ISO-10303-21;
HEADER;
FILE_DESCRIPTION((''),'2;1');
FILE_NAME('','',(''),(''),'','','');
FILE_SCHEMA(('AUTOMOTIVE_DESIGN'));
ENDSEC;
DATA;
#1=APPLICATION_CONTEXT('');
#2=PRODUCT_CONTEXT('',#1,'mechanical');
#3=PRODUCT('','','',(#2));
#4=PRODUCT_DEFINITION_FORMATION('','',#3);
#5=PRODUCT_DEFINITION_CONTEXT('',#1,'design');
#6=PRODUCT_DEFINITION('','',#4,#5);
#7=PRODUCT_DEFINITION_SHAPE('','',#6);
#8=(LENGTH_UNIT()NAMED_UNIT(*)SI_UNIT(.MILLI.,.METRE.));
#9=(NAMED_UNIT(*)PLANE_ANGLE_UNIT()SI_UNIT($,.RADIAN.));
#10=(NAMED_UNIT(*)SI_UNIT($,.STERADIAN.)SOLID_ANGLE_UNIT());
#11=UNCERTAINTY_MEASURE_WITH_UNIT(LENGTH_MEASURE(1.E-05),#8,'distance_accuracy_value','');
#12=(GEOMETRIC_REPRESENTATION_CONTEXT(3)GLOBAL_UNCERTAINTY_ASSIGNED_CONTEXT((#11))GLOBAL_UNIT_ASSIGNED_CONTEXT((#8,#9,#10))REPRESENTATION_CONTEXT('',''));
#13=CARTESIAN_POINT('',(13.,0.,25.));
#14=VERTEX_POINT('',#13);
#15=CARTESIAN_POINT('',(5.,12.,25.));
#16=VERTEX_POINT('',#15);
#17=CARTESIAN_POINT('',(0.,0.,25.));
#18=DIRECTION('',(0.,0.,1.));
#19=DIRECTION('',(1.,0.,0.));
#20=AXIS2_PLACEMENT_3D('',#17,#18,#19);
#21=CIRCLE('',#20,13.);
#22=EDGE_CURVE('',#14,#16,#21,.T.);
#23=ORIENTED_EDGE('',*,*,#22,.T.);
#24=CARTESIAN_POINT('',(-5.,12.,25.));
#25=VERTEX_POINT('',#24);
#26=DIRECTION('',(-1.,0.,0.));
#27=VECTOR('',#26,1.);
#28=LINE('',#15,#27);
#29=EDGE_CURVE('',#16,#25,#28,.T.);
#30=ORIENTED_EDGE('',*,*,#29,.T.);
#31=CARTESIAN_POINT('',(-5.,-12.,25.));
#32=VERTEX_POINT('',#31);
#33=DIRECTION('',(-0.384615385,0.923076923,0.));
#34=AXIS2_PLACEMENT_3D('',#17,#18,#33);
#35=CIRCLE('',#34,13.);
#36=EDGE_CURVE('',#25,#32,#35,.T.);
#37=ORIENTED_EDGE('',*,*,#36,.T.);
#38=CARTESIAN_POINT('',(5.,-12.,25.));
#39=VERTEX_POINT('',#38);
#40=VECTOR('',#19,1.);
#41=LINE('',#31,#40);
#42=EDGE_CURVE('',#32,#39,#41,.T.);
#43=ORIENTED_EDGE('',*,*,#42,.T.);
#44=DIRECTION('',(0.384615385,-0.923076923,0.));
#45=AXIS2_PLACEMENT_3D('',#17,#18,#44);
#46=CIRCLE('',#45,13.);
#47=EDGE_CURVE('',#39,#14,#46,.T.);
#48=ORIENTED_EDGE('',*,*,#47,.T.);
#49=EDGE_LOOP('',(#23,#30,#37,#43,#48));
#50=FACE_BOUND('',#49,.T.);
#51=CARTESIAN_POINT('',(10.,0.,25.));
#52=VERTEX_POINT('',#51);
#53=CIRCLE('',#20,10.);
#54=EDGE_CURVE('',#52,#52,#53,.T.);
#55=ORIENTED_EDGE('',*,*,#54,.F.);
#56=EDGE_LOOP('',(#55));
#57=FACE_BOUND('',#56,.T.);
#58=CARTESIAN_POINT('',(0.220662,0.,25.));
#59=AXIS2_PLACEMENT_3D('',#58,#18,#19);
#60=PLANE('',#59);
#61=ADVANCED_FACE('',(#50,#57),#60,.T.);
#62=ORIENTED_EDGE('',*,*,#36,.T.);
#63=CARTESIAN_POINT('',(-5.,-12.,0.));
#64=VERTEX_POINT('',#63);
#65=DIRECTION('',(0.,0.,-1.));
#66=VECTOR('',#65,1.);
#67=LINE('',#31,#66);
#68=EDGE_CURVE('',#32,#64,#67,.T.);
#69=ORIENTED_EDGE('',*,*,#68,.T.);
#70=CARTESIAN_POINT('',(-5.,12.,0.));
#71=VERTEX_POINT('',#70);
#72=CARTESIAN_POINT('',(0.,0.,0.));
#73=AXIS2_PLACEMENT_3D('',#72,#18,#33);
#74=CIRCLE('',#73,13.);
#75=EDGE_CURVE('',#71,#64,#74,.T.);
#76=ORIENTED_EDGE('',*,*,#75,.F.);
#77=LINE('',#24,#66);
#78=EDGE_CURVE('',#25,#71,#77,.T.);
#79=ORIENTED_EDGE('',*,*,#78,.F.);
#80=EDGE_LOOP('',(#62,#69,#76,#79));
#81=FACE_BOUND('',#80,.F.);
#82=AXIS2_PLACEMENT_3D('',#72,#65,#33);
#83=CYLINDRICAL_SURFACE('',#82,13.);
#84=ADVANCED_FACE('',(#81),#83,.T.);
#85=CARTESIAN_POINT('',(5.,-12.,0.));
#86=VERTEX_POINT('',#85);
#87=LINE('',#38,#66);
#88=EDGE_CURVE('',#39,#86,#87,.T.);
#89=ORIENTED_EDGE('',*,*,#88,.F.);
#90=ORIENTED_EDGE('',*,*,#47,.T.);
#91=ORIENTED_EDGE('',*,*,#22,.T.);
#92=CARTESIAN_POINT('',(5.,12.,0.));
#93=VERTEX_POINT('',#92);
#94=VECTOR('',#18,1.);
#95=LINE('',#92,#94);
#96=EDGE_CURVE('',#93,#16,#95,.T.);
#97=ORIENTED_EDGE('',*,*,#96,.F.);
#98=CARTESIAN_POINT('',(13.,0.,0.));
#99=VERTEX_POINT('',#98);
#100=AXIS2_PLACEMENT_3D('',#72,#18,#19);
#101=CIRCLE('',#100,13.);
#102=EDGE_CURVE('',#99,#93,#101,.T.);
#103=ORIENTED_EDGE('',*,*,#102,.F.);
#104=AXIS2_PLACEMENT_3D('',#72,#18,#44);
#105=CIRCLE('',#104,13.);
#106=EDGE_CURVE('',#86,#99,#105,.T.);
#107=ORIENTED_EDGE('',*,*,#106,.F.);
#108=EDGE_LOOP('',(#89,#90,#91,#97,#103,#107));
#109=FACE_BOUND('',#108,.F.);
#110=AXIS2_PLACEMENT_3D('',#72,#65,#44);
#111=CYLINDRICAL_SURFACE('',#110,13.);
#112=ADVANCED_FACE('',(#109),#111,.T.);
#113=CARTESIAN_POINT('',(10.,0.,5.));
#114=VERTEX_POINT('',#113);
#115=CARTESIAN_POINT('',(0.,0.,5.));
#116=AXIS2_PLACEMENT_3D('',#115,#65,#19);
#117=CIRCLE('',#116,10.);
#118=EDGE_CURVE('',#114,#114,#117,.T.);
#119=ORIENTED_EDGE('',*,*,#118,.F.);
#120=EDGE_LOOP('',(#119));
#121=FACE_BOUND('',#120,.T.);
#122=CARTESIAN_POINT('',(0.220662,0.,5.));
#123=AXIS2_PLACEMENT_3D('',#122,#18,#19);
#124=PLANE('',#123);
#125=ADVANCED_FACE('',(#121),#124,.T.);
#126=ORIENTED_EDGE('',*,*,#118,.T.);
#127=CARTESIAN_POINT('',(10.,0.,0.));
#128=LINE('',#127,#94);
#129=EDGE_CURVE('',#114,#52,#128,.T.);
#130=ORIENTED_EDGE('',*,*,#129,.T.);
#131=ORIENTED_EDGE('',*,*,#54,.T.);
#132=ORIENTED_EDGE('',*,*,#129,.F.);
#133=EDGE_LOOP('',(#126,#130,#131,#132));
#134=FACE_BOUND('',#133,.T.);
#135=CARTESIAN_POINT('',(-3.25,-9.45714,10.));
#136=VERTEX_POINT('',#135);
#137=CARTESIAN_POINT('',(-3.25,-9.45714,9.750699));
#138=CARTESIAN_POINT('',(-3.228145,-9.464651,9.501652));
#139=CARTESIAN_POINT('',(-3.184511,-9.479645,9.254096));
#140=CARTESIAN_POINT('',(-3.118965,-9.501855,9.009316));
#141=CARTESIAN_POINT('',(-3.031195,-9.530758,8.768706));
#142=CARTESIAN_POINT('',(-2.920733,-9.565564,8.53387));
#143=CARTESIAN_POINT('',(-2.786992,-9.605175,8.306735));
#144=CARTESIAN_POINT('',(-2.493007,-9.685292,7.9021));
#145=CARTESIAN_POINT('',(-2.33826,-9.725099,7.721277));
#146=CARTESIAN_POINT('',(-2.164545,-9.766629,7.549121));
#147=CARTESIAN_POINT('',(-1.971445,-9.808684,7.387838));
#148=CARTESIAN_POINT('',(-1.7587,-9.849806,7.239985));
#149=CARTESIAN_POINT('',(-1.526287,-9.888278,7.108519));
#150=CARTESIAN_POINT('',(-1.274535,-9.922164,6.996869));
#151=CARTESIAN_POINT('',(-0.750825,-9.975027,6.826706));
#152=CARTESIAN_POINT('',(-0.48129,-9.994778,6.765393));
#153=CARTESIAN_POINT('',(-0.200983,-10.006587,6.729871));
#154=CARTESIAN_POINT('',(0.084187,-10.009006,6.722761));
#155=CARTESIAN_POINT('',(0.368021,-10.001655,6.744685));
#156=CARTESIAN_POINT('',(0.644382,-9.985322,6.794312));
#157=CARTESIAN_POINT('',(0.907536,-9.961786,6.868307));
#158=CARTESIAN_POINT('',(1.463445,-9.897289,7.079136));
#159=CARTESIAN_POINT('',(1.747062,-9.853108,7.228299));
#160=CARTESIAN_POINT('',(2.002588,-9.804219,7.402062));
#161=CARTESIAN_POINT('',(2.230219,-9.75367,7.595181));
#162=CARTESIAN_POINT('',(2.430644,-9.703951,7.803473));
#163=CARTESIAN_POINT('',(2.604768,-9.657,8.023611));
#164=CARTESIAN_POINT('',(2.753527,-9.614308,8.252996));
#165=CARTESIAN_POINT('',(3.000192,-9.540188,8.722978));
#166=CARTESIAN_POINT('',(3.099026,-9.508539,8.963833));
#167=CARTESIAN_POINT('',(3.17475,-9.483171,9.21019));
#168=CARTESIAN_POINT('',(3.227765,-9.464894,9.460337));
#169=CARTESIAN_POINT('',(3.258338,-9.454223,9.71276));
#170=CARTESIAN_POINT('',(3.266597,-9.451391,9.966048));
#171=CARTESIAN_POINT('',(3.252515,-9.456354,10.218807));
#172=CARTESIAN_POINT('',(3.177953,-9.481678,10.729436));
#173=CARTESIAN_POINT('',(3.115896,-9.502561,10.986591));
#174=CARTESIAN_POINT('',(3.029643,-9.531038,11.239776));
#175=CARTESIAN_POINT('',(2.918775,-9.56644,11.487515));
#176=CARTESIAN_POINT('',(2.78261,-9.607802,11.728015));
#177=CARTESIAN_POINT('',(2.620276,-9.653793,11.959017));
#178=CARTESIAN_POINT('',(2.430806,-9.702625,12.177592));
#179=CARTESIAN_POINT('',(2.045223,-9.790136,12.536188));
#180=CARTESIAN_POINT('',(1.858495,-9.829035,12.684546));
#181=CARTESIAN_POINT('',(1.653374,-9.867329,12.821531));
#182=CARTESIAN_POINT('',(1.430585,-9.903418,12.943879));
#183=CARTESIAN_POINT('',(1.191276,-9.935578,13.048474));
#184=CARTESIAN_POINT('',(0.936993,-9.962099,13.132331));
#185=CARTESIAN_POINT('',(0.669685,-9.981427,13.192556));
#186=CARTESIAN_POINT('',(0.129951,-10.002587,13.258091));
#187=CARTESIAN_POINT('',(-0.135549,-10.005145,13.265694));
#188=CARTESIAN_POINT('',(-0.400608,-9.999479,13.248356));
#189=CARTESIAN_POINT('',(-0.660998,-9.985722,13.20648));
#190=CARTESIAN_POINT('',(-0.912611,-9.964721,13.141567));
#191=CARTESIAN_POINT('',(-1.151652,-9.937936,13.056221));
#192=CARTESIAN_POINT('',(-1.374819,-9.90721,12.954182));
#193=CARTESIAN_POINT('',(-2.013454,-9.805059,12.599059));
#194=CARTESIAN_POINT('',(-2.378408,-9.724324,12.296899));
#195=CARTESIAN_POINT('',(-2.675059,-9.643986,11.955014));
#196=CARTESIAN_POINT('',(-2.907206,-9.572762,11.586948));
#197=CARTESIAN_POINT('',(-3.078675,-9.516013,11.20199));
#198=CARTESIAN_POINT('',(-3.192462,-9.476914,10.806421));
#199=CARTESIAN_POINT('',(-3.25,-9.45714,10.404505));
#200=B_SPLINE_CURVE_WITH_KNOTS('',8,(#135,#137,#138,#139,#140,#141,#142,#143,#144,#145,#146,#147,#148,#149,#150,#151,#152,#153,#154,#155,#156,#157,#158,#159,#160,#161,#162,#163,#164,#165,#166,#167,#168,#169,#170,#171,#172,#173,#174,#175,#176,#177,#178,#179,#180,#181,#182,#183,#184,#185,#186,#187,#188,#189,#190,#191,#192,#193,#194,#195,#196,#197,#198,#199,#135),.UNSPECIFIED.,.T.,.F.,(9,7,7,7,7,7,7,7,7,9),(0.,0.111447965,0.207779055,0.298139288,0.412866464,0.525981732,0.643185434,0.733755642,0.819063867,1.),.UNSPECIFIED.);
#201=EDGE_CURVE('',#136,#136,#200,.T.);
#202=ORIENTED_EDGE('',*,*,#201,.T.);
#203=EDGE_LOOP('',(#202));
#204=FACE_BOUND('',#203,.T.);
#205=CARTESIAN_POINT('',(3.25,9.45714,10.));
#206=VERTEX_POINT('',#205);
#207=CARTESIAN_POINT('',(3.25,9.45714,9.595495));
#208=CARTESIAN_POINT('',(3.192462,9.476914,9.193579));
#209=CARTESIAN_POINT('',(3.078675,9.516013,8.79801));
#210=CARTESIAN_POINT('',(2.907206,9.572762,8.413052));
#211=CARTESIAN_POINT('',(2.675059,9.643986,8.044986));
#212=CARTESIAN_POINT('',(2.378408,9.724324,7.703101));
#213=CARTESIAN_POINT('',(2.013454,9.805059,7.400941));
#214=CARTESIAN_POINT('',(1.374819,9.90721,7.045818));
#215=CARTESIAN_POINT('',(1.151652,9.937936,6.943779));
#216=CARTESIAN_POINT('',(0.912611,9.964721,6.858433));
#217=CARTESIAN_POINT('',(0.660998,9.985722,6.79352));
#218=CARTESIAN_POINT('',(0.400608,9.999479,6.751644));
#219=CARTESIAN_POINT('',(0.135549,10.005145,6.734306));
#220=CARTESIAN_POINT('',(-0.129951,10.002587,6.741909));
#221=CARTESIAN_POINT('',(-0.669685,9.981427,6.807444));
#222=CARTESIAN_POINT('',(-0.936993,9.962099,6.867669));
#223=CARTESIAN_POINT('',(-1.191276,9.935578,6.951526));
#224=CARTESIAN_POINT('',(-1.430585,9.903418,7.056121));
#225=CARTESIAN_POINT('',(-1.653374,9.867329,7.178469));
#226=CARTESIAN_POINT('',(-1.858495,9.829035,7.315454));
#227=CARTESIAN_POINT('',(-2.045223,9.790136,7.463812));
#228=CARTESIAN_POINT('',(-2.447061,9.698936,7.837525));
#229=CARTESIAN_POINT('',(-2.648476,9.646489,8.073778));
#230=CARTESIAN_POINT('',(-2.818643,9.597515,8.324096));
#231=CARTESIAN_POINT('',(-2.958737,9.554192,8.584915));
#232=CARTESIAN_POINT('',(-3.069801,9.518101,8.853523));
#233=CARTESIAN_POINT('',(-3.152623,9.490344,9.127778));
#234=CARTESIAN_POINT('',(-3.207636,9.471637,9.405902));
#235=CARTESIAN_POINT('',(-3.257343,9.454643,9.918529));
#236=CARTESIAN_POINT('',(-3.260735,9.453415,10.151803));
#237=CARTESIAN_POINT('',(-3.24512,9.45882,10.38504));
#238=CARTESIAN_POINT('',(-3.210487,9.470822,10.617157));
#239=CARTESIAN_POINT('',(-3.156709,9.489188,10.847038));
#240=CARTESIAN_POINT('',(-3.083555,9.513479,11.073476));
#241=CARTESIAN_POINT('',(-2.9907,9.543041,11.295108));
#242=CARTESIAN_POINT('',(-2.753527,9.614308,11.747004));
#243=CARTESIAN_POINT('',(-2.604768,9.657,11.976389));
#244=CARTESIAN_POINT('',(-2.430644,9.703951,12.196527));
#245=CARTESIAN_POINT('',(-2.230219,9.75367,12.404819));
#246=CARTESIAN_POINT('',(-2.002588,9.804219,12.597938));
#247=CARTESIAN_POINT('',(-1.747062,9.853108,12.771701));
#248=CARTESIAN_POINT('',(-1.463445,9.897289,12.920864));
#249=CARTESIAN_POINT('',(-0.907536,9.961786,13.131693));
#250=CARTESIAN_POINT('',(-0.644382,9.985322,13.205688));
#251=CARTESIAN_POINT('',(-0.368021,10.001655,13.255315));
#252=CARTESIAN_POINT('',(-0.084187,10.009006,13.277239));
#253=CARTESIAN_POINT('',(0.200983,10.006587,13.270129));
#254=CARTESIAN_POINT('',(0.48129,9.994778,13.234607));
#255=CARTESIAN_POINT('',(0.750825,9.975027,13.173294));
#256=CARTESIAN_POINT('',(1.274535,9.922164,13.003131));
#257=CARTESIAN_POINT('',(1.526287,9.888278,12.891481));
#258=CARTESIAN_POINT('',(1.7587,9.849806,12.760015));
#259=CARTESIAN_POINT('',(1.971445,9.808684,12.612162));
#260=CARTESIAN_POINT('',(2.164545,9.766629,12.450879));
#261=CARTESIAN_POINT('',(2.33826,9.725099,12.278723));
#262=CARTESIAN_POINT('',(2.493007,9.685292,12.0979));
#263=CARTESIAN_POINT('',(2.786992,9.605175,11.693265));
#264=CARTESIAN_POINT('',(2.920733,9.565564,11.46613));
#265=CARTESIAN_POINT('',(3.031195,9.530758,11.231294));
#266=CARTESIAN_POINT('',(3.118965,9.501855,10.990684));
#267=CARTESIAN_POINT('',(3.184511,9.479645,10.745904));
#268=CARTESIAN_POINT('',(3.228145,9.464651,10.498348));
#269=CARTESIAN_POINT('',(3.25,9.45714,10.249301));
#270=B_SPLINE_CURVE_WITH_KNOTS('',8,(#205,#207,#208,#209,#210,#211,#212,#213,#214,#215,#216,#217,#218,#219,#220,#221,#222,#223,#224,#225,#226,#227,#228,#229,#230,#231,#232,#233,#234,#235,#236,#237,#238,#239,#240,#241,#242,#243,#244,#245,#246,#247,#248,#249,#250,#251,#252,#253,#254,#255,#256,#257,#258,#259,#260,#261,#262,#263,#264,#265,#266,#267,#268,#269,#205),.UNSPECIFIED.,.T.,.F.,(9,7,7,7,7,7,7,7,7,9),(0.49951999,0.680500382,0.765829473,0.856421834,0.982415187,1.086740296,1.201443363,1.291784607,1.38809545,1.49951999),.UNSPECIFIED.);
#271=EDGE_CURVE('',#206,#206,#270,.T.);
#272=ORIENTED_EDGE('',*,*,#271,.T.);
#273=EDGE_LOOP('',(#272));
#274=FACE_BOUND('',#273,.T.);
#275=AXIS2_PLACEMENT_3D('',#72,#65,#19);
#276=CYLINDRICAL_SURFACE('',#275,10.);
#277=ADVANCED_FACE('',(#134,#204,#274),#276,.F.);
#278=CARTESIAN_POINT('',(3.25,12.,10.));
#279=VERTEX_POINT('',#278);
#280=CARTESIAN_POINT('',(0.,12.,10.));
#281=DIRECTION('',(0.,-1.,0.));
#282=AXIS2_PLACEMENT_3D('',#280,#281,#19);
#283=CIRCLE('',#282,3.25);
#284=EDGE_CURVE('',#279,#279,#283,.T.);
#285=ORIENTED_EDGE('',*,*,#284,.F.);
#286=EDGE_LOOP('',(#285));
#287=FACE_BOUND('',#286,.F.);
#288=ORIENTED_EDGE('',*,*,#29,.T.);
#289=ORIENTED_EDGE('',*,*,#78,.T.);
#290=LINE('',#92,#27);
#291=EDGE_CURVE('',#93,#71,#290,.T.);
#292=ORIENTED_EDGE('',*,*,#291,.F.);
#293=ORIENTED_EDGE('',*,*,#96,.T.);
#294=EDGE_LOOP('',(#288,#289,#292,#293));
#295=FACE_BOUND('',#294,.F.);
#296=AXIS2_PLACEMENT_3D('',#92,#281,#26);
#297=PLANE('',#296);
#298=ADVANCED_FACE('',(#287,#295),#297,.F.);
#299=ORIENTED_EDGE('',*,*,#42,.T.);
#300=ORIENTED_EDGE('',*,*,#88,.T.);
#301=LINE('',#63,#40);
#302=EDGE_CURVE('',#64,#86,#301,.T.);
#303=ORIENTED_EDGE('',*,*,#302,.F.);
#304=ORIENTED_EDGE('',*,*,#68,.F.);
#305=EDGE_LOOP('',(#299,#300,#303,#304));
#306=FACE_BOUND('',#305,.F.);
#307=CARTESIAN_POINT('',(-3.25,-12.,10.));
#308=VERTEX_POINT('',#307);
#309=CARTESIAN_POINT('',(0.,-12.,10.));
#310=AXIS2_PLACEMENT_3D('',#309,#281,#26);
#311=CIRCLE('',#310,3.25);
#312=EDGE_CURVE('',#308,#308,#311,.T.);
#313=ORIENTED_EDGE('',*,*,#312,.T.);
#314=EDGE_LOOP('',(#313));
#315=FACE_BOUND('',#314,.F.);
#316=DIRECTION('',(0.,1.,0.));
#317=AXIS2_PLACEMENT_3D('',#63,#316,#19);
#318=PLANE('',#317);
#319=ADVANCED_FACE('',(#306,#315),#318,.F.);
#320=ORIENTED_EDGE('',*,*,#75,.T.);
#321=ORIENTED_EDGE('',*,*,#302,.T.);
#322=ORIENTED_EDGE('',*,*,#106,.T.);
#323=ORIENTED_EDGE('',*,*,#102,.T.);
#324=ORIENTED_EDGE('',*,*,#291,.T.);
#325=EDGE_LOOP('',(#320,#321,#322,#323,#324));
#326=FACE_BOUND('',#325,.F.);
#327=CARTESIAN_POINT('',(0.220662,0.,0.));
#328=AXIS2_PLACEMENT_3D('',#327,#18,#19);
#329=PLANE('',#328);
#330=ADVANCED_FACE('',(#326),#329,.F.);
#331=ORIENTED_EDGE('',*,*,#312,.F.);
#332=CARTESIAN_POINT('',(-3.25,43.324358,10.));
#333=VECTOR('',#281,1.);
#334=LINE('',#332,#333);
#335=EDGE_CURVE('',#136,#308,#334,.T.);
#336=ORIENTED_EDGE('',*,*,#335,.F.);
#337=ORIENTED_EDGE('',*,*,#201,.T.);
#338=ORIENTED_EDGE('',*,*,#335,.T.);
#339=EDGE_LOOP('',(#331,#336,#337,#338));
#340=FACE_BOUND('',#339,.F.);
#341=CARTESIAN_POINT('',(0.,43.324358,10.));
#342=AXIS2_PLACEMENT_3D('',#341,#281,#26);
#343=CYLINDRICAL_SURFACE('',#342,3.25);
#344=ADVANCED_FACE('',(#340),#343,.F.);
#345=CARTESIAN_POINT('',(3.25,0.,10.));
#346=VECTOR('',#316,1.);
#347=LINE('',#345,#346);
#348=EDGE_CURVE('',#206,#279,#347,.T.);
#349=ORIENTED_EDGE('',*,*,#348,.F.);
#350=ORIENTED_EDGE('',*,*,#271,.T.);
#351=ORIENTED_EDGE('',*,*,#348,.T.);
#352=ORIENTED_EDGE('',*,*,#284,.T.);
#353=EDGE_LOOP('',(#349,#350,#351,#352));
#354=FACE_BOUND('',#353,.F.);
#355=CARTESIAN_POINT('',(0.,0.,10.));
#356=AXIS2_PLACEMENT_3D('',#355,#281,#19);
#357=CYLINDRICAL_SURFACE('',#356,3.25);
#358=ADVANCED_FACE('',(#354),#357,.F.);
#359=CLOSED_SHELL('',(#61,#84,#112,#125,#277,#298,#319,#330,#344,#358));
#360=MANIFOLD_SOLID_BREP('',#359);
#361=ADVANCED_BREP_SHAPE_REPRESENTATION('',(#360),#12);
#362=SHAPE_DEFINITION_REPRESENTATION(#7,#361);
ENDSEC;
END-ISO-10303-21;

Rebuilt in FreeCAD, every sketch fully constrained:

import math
import FreeCAD as App
import Part
import Sketcher
from FreeCAD import Vector
Q = App.Units.Quantity

doc = App.newDocument("Part")
body = doc.addObject("PartDesign::Body", "Body")

sketch1 = doc.addObject("Sketcher::SketchObject", "Sketch")
body.addObject(sketch1)
sketch1.AttachmentSupport = (doc.XY_Plane, [""])
sketch1.MapMode = "FlatFace"
sketch1.addGeometry([
    Part.ArcOfCircle(Part.Circle(Vector(0, 0, 0), Vector(0, 0, 1), 13), math.radians(-67), math.radians(0)),
    Part.ArcOfCircle(Part.Circle(Vector(0, 0, 0), Vector(0, 0, 1), 13), math.radians(0), math.radians(67)),
    Part.LineSegment(Vector(5, 12, 0), Vector(-5, 12, 0)),
    Part.ArcOfCircle(Part.Circle(Vector(0, 0, 0), Vector(0, 0, 1), 13), math.radians(113), math.radians(247)),
    Part.LineSegment(Vector(-5, -12, 0), Vector(5, -12, 0)),
], False)
sketch1.addConstraint([
    Sketcher.Constraint("Tangent", 0, 2, 1, 1),
    Sketcher.Constraint("Coincident", 1, 2, 2, 1),
    Sketcher.Constraint("Coincident", 2, 2, 3, 1),
    Sketcher.Constraint("Coincident", 3, 2, 4, 1),
    Sketcher.Constraint("Coincident", 4, 2, 0, 1),
    Sketcher.Constraint("Horizontal", 2),
    Sketcher.Constraint("Horizontal", 4),
    Sketcher.Constraint("Coincident", 0, 3, -1, 1),
    Sketcher.Constraint("Coincident", 3, 3, -1, 1),
    Sketcher.Constraint("Equal", 0, 1),
    Sketcher.Constraint("Equal", 1, 3),
    Sketcher.Constraint("PointOnObject", 0, 2, -1),
    Sketcher.Constraint("Vertical", 2, 2, 3, 2),
    Sketcher.Constraint("Radius", 0, Q("13 mm")),
    Sketcher.Constraint("DistanceX", 2, 2, 2, 1, Q("10 mm")),
])
pad1 = doc.addObject("PartDesign::Pad", "Pad")
body.addObject(pad1)
pad1.Profile = sketch1
pad1.Length = 5

sketch2 = doc.addObject("Sketcher::SketchObject", "Sketch001")
body.addObject(sketch2)
sketch2.AttachmentSupport = (doc.XY_Plane, [""])
sketch2.MapMode = "FlatFace"
sketch2.addGeometry([
    Part.ArcOfCircle(Part.Circle(Vector(0, 0, 0), Vector(0, 0, 1), 13), math.radians(-67), math.radians(0)),
    Part.ArcOfCircle(Part.Circle(Vector(0, 0, 0), Vector(0, 0, 1), 13), math.radians(0), math.radians(67)),
    Part.LineSegment(Vector(5, 12, 0), Vector(-5, 12, 0)),
    Part.ArcOfCircle(Part.Circle(Vector(0, 0, 0), Vector(0, 0, 1), 13), math.radians(113), math.radians(247)),
    Part.LineSegment(Vector(-5, -12, 0), Vector(5, -12, 0)),
    Part.Circle(Vector(0, 0, 0), Vector(0, 0, 1), 10),
], False)
sketch2.addConstraint([
    Sketcher.Constraint("Tangent", 0, 2, 1, 1),
    Sketcher.Constraint("Coincident", 1, 2, 2, 1),
    Sketcher.Constraint("Coincident", 2, 2, 3, 1),
    Sketcher.Constraint("Coincident", 3, 2, 4, 1),
    Sketcher.Constraint("Coincident", 4, 2, 0, 1),
    Sketcher.Constraint("Horizontal", 2),
    Sketcher.Constraint("Horizontal", 4),
    Sketcher.Constraint("Coincident", 0, 3, -1, 1),
    Sketcher.Constraint("Coincident", 3, 3, -1, 1),
    Sketcher.Constraint("Coincident", 5, 3, -1, 1),
    Sketcher.Constraint("Equal", 0, 1),
    Sketcher.Constraint("Equal", 1, 3),
    Sketcher.Constraint("PointOnObject", 0, 2, -1),
    Sketcher.Constraint("Vertical", 2, 2, 3, 2),
    Sketcher.Constraint("Diameter", 5, Q("20 mm")),
    Sketcher.Constraint("Radius", 0, Q("13 mm")),
    Sketcher.Constraint("DistanceX", 2, 2, 2, 1, Q("10 mm")),
])
pad2 = doc.addObject("PartDesign::Pad", "Pad001")
body.addObject(pad2)
pad2.Profile = sketch2
pad2.Length = 25

sketch3 = doc.addObject("Sketcher::SketchObject", "Sketch002")
body.addObject(sketch3)
sketch3.AttachmentSupport = (doc.XZ_Plane, [""])
sketch3.MapMode = "FlatFace"
sketch3.addGeometry(Part.Circle(Vector(0, 10, 0), Vector(0, 0, 1), 3.2), False)
sketch3.addConstraint([
    Sketcher.Constraint("PointOnObject", 0, 3, -2),
    Sketcher.Constraint("Diameter", 0, Q("6.5 mm")),
    Sketcher.Constraint("DistanceY", -1, 1, 0, 3, Q("10 mm")),
])
pocket1 = doc.addObject("PartDesign::Pocket", "Pocket")
body.addObject(pocket1)
pocket1.Profile = sketch3
pocket1.Type = "ThroughAll"

sketch4 = doc.addObject("Sketcher::SketchObject", "Sketch003")
body.addObject(sketch4)
sketch4.AttachmentSupport = (doc.XZ_Plane, [""])
sketch4.MapMode = "FlatFace"
sketch4.addGeometry(Part.Circle(Vector(0, 10, 0), Vector(0, 0, 1), 3.2), False)
sketch4.addConstraint([
    Sketcher.Constraint("PointOnObject", 0, 3, -2),
    Sketcher.Constraint("Diameter", 0, Q("6.5 mm")),
    Sketcher.Constraint("DistanceY", -1, 1, 0, 3, Q("10 mm")),
])
doc.recompute()
hole = doc.addObject("PartDesign::Hole", "Hole")
body.addObject(hole)
hole.Profile = sketch4
hole.ThreadType = "None"
hole.Diameter = 6.5
hole.DepthType = "ThroughAll"
hole.Reversed = True

doc.recompute()
